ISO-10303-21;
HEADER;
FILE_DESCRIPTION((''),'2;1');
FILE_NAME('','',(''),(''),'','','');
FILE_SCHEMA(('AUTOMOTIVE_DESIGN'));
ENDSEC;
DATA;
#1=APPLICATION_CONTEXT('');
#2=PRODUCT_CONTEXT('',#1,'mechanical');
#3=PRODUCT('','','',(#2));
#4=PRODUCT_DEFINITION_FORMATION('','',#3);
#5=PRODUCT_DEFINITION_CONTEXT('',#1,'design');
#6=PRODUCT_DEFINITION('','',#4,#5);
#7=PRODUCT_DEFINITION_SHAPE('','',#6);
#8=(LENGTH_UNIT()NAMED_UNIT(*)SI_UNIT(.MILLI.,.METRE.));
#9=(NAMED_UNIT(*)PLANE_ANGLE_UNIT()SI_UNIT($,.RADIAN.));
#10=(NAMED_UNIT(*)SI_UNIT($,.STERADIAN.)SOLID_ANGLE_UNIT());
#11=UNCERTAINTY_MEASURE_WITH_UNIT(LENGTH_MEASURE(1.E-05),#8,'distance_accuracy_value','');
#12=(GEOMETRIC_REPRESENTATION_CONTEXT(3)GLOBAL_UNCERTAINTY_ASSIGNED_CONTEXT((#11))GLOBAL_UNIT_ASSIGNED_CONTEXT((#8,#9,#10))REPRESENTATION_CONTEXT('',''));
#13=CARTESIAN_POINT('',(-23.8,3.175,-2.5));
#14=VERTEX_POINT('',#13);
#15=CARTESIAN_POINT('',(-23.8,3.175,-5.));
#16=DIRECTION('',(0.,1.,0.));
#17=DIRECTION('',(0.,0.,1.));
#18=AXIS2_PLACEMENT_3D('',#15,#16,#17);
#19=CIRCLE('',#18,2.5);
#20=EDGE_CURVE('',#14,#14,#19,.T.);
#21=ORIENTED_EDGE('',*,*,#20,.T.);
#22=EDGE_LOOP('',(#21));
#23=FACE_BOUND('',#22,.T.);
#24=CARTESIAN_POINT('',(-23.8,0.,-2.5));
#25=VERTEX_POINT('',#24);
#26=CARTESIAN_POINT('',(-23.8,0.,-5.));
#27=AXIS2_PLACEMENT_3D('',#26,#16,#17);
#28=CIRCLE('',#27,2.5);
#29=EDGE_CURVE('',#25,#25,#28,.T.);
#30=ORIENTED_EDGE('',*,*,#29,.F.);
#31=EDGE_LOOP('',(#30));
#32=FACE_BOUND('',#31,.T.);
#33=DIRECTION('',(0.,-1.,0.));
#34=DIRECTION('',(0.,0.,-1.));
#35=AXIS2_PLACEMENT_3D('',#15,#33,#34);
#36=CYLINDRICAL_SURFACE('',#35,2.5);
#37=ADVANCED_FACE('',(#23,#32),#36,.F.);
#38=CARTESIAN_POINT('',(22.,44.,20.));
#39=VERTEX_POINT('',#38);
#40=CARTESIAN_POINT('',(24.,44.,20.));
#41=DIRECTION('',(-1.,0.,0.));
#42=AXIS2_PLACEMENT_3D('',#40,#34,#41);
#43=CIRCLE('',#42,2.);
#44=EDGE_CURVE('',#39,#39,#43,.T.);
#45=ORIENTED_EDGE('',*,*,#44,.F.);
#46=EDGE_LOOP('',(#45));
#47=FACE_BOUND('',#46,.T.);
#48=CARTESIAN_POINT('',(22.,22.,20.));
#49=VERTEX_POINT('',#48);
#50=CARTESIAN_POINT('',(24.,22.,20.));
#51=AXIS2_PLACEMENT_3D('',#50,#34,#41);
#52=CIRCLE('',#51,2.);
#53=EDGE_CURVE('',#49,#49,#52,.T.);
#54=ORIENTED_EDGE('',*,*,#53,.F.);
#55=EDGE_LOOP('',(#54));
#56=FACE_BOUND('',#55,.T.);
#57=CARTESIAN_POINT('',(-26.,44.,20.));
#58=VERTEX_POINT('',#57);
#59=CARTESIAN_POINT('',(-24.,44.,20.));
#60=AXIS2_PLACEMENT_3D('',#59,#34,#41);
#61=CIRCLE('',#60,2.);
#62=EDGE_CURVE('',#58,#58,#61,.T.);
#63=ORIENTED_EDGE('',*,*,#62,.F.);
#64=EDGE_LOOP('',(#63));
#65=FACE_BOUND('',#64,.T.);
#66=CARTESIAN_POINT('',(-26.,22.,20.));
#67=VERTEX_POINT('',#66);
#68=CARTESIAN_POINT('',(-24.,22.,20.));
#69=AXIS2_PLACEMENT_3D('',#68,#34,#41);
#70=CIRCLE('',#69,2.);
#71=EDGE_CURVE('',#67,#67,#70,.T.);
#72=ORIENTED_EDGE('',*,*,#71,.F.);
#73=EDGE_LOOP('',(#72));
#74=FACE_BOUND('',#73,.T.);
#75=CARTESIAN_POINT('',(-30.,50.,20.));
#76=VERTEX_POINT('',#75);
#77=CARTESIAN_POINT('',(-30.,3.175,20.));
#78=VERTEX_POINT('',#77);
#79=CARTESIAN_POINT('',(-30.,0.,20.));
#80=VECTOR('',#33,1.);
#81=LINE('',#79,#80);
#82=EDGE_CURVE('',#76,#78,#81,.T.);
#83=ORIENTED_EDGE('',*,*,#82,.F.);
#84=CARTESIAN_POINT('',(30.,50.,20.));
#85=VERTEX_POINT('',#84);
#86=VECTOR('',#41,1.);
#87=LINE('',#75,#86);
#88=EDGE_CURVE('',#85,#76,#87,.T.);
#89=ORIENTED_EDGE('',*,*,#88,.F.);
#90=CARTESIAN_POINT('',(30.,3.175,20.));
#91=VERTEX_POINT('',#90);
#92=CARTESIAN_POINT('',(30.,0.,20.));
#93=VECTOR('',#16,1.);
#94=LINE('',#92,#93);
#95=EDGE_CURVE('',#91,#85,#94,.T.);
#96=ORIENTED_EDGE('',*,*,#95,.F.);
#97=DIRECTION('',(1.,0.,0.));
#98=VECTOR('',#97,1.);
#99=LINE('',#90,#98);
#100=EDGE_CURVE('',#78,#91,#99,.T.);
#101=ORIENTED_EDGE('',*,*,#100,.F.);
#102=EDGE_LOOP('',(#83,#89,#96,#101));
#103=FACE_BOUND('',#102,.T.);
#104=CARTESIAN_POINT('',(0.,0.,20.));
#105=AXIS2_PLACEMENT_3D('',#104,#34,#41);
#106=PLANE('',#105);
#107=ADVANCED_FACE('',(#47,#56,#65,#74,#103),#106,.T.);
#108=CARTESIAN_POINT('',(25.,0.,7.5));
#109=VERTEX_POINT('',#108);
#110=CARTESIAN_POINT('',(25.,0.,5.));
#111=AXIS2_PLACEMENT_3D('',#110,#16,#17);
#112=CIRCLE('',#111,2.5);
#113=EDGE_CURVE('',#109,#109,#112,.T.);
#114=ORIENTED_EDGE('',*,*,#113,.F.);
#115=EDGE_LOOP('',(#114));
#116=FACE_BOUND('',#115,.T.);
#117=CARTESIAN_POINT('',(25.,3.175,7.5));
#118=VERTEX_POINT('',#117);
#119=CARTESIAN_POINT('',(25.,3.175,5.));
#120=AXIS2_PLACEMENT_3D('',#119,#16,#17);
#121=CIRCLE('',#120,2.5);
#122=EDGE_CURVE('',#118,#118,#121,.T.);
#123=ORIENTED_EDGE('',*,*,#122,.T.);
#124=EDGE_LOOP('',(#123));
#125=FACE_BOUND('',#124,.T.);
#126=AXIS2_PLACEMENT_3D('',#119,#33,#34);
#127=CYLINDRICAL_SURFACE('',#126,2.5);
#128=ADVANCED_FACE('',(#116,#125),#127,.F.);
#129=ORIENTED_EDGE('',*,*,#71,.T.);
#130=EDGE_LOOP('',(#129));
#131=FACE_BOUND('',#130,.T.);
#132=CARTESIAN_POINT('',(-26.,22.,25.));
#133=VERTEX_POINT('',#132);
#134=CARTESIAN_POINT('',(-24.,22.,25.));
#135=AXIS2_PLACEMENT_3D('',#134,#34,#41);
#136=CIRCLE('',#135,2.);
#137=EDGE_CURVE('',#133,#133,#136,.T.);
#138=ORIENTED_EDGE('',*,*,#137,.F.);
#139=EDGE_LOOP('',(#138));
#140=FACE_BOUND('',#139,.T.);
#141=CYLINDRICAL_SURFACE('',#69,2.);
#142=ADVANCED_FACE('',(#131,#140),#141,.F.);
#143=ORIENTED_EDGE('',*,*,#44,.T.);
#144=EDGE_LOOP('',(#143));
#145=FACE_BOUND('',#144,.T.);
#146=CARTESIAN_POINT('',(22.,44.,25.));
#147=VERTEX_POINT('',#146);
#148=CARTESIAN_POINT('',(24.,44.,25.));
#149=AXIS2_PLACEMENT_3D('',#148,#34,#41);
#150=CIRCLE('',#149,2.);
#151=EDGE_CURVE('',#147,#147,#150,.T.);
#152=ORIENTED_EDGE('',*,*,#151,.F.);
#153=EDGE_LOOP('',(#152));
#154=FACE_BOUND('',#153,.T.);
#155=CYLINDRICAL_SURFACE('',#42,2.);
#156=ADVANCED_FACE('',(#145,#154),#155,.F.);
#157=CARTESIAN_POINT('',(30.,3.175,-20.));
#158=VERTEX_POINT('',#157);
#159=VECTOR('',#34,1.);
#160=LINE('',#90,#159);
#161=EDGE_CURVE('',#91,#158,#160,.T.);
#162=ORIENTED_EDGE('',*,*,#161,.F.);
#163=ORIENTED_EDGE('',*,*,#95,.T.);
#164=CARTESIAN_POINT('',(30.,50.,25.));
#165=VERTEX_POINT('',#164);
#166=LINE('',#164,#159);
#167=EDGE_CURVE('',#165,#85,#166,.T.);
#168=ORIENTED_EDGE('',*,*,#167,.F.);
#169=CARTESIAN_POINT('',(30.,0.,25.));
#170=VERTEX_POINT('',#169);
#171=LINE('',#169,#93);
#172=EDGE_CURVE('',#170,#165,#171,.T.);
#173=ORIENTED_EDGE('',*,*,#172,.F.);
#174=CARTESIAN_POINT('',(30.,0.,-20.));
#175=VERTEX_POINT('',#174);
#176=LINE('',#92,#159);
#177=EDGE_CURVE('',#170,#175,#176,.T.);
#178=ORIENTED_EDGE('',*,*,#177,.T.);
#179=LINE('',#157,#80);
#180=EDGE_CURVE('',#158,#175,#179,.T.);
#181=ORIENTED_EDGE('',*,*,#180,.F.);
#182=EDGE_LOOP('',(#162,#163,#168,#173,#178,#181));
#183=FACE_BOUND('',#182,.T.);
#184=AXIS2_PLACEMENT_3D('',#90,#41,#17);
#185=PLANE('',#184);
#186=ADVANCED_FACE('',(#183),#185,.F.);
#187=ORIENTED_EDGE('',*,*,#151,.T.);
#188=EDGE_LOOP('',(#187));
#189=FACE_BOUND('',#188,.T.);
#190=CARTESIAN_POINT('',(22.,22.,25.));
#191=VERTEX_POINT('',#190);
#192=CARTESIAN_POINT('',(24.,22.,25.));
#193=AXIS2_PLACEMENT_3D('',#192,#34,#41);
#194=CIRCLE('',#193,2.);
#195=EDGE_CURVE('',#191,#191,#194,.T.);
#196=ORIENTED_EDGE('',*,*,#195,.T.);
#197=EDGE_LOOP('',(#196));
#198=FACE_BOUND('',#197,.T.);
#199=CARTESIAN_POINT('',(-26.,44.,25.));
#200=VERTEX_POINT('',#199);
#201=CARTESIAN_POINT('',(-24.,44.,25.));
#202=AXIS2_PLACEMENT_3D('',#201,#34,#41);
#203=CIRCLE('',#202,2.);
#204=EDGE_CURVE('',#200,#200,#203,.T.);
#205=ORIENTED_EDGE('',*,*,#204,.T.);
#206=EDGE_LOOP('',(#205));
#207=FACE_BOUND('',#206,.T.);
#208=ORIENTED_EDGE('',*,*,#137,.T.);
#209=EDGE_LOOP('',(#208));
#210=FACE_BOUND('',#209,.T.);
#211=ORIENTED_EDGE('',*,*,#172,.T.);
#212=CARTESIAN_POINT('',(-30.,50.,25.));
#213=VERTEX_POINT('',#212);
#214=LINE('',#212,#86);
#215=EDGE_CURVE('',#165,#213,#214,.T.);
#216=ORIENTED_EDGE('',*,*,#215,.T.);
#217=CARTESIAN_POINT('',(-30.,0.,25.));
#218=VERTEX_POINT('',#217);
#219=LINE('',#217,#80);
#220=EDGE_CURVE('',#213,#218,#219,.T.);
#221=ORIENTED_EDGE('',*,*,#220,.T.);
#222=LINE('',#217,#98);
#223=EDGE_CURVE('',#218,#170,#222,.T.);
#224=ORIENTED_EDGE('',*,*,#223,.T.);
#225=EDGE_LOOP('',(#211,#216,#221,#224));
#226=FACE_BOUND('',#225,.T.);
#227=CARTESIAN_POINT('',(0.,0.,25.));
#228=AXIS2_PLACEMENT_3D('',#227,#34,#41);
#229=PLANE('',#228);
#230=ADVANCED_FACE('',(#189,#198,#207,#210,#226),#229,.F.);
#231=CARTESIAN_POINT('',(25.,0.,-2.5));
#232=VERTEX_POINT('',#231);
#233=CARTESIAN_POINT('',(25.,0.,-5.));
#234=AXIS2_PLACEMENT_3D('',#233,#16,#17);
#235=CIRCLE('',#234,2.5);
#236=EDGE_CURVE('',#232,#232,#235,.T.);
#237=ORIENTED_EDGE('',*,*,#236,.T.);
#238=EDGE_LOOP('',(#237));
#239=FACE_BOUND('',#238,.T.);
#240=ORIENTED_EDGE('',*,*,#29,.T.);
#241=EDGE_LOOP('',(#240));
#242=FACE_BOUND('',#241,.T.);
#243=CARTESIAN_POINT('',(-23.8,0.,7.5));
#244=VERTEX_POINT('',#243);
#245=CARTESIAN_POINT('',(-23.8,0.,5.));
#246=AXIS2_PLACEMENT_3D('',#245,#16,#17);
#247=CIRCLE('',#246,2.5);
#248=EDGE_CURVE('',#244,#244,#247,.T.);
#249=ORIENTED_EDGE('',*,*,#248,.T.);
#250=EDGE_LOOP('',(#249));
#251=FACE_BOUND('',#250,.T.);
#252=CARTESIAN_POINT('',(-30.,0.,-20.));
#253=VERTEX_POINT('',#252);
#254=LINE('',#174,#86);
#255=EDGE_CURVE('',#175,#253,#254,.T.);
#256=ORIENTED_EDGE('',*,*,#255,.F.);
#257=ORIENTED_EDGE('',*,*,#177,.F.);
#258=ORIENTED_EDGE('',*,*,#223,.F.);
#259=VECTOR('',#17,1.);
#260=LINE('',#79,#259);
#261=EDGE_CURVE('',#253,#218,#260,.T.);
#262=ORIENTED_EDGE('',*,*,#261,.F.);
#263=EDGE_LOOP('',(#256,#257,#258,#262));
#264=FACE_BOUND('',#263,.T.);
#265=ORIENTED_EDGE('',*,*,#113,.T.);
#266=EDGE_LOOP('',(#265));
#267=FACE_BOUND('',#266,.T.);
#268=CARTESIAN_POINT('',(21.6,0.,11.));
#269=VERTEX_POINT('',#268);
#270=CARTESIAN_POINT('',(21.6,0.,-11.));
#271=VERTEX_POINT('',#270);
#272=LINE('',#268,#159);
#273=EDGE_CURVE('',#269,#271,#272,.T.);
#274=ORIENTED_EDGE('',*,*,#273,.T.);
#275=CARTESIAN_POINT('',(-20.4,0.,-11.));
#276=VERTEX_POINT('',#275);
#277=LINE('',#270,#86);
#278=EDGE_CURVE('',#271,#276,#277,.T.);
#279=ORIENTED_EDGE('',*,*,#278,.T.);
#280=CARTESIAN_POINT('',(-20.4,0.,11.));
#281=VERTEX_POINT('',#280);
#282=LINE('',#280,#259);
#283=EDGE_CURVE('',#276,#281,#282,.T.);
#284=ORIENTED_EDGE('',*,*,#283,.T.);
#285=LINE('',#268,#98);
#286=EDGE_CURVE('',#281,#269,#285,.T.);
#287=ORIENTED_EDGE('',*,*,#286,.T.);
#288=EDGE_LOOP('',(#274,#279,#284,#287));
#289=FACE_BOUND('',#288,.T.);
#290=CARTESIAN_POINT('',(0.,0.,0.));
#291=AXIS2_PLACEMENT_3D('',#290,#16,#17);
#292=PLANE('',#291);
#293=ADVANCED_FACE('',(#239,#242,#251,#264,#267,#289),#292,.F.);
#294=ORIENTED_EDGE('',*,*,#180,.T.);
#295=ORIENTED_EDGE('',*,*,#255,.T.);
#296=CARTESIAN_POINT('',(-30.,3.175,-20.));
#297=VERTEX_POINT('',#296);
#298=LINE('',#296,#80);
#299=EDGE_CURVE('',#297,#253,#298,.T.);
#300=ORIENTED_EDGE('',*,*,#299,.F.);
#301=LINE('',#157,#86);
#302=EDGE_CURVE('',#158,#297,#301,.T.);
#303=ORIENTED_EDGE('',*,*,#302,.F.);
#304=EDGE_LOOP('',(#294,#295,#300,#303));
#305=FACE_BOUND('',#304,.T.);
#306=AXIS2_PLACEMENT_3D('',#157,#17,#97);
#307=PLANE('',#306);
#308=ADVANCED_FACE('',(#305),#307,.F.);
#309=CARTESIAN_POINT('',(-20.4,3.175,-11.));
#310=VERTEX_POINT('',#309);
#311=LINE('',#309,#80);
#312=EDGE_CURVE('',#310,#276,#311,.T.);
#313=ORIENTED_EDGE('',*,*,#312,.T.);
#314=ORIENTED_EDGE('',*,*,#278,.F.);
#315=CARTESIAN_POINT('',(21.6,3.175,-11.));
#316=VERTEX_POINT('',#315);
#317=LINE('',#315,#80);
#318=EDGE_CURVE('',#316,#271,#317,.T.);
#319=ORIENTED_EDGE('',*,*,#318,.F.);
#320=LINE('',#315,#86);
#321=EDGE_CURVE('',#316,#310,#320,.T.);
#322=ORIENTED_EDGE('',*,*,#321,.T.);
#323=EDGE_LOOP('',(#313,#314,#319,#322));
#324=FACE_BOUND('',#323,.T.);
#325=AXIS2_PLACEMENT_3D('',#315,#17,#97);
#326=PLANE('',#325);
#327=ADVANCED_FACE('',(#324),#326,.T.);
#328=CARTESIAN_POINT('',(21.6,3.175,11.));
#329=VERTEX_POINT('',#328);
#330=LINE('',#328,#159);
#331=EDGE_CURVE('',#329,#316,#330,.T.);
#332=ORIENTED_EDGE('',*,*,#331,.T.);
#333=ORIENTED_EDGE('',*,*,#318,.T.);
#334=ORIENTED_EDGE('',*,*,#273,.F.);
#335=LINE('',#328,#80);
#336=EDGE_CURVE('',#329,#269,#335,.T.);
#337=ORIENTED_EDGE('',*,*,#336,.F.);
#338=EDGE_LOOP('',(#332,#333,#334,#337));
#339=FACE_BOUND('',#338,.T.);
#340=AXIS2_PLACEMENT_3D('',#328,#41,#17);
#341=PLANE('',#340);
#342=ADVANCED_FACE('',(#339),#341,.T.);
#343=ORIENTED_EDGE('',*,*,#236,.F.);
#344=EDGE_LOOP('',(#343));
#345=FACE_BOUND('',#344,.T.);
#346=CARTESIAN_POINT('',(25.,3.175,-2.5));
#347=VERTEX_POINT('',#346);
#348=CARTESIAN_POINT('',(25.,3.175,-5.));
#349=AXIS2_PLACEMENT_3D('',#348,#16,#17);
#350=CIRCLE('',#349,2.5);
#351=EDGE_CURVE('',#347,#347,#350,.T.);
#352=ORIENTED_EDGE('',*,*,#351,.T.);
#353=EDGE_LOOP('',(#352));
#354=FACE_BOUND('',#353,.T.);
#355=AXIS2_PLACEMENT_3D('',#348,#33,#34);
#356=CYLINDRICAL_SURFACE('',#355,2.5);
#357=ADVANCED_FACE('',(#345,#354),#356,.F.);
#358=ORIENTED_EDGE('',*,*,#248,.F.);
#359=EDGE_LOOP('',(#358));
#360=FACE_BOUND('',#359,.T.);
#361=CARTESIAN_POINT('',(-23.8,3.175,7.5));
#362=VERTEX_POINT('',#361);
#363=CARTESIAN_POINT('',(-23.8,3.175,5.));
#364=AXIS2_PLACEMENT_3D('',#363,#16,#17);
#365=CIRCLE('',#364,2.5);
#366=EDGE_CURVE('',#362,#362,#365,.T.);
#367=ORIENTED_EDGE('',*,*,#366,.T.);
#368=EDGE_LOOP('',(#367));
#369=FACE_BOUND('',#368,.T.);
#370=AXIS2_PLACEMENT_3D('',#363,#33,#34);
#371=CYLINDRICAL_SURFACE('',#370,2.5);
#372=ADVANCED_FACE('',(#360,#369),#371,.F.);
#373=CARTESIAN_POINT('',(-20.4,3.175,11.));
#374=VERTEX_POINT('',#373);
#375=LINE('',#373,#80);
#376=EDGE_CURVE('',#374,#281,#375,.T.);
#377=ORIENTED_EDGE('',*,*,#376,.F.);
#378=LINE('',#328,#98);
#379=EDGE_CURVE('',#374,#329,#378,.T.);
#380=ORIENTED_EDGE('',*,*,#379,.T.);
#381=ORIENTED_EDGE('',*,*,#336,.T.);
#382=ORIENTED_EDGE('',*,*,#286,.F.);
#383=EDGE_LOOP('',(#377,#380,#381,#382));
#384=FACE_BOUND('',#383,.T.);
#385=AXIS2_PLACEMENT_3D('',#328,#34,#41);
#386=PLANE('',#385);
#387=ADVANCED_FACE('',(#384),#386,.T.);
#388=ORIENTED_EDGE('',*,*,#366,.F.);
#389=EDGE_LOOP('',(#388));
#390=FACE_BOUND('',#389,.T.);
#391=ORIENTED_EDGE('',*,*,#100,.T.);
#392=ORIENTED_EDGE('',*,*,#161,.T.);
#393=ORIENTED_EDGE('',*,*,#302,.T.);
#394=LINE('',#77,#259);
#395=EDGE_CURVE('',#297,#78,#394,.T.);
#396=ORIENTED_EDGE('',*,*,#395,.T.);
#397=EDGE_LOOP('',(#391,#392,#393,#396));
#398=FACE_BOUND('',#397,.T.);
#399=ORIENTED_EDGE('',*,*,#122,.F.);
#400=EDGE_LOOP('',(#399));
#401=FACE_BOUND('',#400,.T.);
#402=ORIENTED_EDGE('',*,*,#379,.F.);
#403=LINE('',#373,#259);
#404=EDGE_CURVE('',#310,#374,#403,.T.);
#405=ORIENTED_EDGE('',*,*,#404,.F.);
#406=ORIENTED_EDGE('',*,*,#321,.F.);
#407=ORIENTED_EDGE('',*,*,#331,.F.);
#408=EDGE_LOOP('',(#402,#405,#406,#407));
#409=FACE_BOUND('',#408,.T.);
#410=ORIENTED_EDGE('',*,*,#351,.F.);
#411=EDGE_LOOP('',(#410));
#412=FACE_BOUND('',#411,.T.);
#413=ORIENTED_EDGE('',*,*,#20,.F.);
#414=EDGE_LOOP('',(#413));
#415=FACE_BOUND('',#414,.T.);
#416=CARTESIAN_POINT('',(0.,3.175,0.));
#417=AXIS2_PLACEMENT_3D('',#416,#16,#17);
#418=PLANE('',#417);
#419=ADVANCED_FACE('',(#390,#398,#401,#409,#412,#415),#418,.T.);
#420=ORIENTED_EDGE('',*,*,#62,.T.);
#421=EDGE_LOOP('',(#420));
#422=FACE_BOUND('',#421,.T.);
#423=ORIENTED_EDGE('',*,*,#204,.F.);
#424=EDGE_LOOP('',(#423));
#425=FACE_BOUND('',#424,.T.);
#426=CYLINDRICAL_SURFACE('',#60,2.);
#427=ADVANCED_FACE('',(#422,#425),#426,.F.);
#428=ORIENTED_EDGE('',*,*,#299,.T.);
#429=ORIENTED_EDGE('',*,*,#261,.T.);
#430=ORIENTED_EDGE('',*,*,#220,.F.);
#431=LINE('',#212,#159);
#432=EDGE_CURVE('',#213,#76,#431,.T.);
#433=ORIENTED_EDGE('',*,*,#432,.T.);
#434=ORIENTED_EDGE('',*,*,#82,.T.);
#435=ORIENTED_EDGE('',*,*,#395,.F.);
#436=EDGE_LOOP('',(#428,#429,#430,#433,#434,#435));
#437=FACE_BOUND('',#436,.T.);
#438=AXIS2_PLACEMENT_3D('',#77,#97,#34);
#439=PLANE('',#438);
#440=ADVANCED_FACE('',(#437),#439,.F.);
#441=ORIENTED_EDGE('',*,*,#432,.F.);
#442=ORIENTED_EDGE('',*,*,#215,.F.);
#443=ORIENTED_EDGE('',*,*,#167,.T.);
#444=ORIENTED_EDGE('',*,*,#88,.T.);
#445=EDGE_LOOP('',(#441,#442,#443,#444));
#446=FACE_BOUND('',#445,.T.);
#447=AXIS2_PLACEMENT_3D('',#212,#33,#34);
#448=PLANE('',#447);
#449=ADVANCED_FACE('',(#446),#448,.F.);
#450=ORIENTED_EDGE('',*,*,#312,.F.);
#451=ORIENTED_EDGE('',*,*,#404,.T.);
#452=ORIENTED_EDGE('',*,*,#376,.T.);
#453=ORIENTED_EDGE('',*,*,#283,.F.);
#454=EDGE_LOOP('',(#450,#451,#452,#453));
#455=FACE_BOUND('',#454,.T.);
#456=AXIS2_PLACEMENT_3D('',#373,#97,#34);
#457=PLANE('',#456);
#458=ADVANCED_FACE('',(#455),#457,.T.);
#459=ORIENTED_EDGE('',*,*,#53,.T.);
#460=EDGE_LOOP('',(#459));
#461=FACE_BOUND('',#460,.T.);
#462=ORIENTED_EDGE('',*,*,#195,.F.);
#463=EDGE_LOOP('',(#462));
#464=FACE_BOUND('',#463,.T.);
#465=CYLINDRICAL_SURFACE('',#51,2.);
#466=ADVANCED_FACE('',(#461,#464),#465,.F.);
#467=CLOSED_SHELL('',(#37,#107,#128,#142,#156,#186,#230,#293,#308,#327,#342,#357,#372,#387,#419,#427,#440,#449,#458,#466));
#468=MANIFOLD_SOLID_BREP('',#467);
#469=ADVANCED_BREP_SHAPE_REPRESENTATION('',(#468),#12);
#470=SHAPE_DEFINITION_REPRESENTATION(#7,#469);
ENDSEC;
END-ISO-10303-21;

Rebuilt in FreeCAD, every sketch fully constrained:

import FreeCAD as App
import Part
import Sketcher


def add_polygon(sketch, points):
    """Adds a closed chain of lines whose ends are joined by coincident constraints."""
    first, n = sketch.GeometryCount, len(points)
    for a, b in zip(points, points[1:] + points[:1]):
        sketch.addGeometry(Part.LineSegment(App.Vector(*a, 0), App.Vector(*b, 0)), False)
    for i in range(n):
        sketch.addConstraint(Sketcher.Constraint("Coincident", first + i, 2, first + (i + 1) % n, 1))

doc = App.newDocument("Part")
params = doc.addObject("Spreadsheet::Sheet", "Params")
for row, (alias, value) in enumerate([
    ("sketch1_diameter", "5 mm"),
    ("sketch1_width", "60 mm"),
    ("sketch1_width2", "42 mm"),
    ("sketch1_height", "40 mm"),
    ("sketch1_height2", "22 mm"),
    ("pad1_length", "3.175 mm"),
    ("sketch2_width", "60 mm"),
    ("sketch2_height", "50 mm"),
    ("pad2_length", "5 mm"),
    ("sketch3_diameter", "4 mm"),
    ("hole_diameter", "4 mm"),
], start=1):
    params.set(f"A{row}", alias)
    params.set(f"B{row}", "=" + value)
    params.setAlias(f"B{row}", alias)

body = doc.addObject("PartDesign::Body", "Body")

sketch1 = body.newObject("Sketcher::SketchObject", "Sketch")
sketch1.AttachmentSupport = (doc.getObject("XZ_Plane"), [""])
sketch1.MapMode = "FlatFace"
add_polygon(sketch1, [(-30, -20), (-30, 20), (30, 20), (30, -20)])
sketch1.addGeometry(Part.Circle(App.Vector(-23.8, 5, 0), App.Vector(0, 0, 1), 2.5), False)
sketch1.addGeometry(Part.Circle(App.Vector(25, 5, 0), App.Vector(0, 0, 1), 2.5), False)
sketch1.addGeometry(Part.Circle(App.Vector(-23.8, -5, 0), App.Vector(0, 0, 1), 2.5), False)
add_polygon(sketch1, [(21.6, 11), (-20.4, 11), (-20.4, -11), (21.6, -11)])
sketch1.addGeometry(Part.Circle(App.Vector(25, -5, 0), App.Vector(0, 0, 1), 2.5), False)
sketch1.addConstraint([
    Sketcher.Constraint("Vertical", 0),
    Sketcher.Constraint("Horizontal", 1),
    Sketcher.Constraint("Vertical", 2),
    Sketcher.Constraint("Horizontal", 3),
    Sketcher.Constraint("Horizontal", 7),
    Sketcher.Constraint("Vertical", 8),
    Sketcher.Constraint("Horizontal", 9),
    Sketcher.Constraint("Vertical", 10),
    Sketcher.Constraint("Equal", 4, 5),
    Sketcher.Constraint("Equal", 5, 6),
    Sketcher.Constraint("Equal", 6, 11),
    Sketcher.Constraint("Symmetric", 0, 2, 2, 2, -1, 1),
    Sketcher.Constraint("Symmetric", 4, 3, 6, 3, -1),
    Sketcher.Constraint("Symmetric", 5, 3, 11, 3, -1),
    Sketcher.Constraint("Horizontal", 4, 3, 5, 3),
    Sketcher.Constraint("Diameter", 4, 5.0),
    Sketcher.Constraint("DistanceX", 1, 1, 1, 2, 60.0),
    Sketcher.Constraint("DistanceX", 7, 2, 7, 1, 42.0),
    Sketcher.Constraint("DistanceY", 0, 1, 0, 2, 40.0),
    Sketcher.Constraint("DistanceY", 8, 2, 8, 1, 22.0),
    Sketcher.Constraint("DistanceY", -1, 1, 4, 3, 5.0),
    Sketcher.Constraint("DistanceX", -1, 1, 5, 3, 25.0),
    Sketcher.Constraint("DistanceY", -1, 1, 7, 2, 11.0),
    Sketcher.Constraint("DistanceX", 4, 3, -1, 1, 23.8),
    Sketcher.Constraint("DistanceX", 7, 2, -1, 1, 20.4),
])
sketch1.setExpression("Constraints[23]", "Params.sketch1_diameter")
sketch1.setExpression("Constraints[24]", "Params.sketch1_width")
sketch1.setExpression("Constraints[25]", "Params.sketch1_width2")
sketch1.setExpression("Constraints[26]", "Params.sketch1_height")
sketch1.setExpression("Constraints[27]", "Params.sketch1_height2")
pad1 = body.newObject("PartDesign::Pad", "Pad")
pad1.Profile = sketch1
pad1.setExpression("Length", "Params.pad1_length")
pad1.Reversed = True

sketch2 = body.newObject("Sketcher::SketchObject", "Sketch001")
sketch2.AttachmentSupport = (doc.getObject("XY_Plane"), [""])
sketch2.MapMode = "FlatFace"
sketch2.AttachmentOffset = App.Placement(App.Vector(0, 0, 20), App.Rotation())
add_polygon(sketch2, [(-30, 50), (-30, 0), (30, 0), (30, 50)])
sketch2.addConstraint([
    Sketcher.Constraint("Vertical", 0),
    Sketcher.Constraint("Horizontal", 1),
    Sketcher.Constraint("Vertical", 2),
    Sketcher.Constraint("Horizontal", 3),
    Sketcher.Constraint("Symmetric", 0, 2, 1, 2, -1, 1),
    Sketcher.Constraint("DistanceX", 1, 1, 1, 2, 60.0),
    Sketcher.Constraint("DistanceY", 0, 2, 0, 1, 50.0),
])
sketch2.setExpression("Constraints[9]", "Params.sketch2_width")
sketch2.setExpression("Constraints[10]", "Params.sketch2_height")
pad2 = body.newObject("PartDesign::Pad", "Pad001")
pad2.Profile = sketch2
pad2.setExpression("Length", "Params.pad2_length")

sketch3 = body.newObject("Sketcher::SketchObject", "Sketch002")
sketch3.AttachmentSupport = (doc.getObject("XY_Plane"), [""])
sketch3.MapMode = "FlatFace"
sketch3.AttachmentOffset = App.Placement(App.Vector(0, 0, 20), App.Rotation())
sketch3.addGeometry([
    Part.Circle(App.Vector(24, 44, 0), App.Vector(0, 0, 1), 2),
    Part.Circle(App.Vector(-24, 44, 0), App.Vector(0, 0, 1), 2),
    Part.Circle(App.Vector(24, 22, 0), App.Vector(0, 0, 1), 2),
    Part.Circle(App.Vector(-24, 22, 0), App.Vector(0, 0, 1), 2),
], False)
sketch3.addConstraint([
    Sketcher.Constraint("Equal", 0, 1),
    Sketcher.Constraint("Equal", 1, 2),
    Sketcher.Constraint("Equal", 2, 3),
    Sketcher.Constraint("Symmetric", 0, 3, 1, 3, -2),
    Sketcher.Constraint("Symmetric", 2, 3, 3, 3, -2),
    Sketcher.Constraint("Vertical", 0, 3, 2, 3),
    Sketcher.Constraint("Diameter", 0, 4.0),
    Sketcher.Constraint("DistanceX", -1, 1, 0, 3, 24.0),
    Sketcher.Constraint("DistanceY", -1, 1, 0, 3, 44.0),
    Sketcher.Constraint("DistanceY", -1, 1, 2, 3, 22.0),
])
sketch3.setExpression("Constraints[6]", "Params.sketch3_diameter")
doc.recompute()
hole = body.newObject("PartDesign::Hole", "Hole")
hole.Profile = sketch3
hole.ThreadType = "None"
hole.setExpression("Diameter", "Params.hole_diameter")
hole.DepthType = "ThroughAll"
hole.Reversed = True

doc.recompute()
